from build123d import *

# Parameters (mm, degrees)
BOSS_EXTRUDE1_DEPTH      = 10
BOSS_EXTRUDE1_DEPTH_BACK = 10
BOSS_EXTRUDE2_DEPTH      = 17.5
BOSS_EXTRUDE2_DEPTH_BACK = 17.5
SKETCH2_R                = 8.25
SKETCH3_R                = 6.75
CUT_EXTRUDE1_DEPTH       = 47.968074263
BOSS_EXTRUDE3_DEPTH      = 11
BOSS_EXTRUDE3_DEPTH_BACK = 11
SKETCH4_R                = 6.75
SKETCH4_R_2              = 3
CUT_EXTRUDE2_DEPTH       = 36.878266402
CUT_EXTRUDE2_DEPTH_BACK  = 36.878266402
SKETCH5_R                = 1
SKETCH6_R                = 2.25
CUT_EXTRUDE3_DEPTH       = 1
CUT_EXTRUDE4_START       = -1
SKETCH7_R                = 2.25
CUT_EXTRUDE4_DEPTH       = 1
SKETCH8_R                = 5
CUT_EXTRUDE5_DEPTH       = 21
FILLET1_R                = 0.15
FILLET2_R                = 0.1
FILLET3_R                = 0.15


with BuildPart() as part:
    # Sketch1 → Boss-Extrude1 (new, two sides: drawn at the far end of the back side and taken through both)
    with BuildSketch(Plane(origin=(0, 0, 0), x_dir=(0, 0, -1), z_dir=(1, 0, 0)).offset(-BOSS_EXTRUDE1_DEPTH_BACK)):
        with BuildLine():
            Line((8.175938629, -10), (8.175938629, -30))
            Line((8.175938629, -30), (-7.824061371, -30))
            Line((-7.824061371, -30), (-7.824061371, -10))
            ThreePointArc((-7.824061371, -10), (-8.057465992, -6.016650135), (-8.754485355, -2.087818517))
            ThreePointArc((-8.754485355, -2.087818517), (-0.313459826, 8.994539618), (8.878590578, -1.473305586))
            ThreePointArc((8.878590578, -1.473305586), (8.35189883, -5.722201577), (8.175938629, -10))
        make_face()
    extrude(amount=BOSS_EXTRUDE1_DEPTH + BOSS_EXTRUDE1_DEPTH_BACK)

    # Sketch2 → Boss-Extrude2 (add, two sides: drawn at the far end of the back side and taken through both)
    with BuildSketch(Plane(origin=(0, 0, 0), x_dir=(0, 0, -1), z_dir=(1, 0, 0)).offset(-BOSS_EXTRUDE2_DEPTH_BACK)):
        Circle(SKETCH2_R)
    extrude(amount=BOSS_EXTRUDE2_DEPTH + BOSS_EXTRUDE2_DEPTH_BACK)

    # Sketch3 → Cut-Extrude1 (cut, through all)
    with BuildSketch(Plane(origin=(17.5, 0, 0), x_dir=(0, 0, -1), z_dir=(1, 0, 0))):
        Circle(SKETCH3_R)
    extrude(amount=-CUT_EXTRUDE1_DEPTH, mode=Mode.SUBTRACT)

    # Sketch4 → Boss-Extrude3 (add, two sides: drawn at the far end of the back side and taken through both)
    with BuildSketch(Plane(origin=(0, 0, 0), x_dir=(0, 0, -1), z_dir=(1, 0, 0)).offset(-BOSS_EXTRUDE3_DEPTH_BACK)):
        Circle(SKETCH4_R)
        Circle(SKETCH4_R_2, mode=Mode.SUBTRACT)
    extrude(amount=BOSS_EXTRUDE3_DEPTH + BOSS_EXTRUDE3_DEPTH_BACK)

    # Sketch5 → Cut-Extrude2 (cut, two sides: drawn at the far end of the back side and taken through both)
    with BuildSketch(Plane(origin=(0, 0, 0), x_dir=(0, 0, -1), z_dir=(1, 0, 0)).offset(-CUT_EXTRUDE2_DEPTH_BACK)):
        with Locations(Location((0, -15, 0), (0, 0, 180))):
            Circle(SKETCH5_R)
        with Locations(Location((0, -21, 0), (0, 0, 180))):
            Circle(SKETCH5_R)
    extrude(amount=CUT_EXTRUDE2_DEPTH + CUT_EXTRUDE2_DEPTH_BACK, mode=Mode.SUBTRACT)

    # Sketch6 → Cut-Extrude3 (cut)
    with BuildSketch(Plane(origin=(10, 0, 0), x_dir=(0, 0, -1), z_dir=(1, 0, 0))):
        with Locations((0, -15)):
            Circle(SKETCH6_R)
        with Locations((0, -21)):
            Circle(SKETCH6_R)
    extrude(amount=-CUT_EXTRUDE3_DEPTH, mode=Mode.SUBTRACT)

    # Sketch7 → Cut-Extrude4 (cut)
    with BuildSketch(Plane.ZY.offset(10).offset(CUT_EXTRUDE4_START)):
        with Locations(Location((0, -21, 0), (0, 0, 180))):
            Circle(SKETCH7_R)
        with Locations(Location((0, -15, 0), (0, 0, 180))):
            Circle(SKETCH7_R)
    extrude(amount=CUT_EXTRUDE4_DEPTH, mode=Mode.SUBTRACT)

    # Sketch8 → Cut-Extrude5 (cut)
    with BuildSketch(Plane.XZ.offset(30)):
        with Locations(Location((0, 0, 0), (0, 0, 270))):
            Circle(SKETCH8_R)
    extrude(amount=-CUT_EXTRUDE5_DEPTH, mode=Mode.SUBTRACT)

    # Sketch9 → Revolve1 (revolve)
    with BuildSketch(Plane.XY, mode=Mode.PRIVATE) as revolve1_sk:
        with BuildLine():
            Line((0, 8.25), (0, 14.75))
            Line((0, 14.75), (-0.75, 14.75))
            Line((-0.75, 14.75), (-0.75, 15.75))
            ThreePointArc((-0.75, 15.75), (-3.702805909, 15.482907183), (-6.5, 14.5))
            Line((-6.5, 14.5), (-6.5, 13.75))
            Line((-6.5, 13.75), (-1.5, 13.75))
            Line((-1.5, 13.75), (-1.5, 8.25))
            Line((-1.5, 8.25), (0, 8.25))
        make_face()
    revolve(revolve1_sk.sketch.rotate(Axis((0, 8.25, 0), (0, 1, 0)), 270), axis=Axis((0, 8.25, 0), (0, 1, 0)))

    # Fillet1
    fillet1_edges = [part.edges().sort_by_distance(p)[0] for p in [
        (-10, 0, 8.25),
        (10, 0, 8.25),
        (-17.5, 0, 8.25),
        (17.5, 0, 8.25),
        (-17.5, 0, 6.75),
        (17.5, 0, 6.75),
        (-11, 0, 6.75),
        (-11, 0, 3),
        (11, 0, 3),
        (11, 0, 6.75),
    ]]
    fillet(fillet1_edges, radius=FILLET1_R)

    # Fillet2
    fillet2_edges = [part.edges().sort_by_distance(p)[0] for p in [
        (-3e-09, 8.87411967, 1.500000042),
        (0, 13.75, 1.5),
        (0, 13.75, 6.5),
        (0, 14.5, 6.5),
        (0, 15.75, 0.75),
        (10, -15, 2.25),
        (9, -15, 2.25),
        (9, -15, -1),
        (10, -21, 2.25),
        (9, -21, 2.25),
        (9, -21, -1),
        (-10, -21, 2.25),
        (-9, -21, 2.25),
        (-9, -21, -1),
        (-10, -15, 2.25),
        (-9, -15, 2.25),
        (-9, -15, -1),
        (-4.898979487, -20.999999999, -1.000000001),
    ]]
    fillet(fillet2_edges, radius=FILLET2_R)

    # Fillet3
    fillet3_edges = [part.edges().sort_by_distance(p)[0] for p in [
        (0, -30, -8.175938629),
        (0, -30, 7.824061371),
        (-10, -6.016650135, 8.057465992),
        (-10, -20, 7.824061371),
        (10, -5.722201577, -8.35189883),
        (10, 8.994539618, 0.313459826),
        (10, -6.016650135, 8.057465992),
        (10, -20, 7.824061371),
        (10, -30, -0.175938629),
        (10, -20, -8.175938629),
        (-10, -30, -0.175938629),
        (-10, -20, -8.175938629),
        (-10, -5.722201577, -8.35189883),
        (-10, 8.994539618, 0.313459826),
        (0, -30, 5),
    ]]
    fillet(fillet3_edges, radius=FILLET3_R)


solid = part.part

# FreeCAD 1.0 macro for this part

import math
import FreeCAD as App
import Part
import Sketcher

V = App.Vector
Q = App.Units.Quantity


def edges_at(feature, points):
    """Names of the edges that pass closest to the given points."""
    edges = feature.Shape.Edges
    near = lambda p: min(range(len(edges)), key=lambda i: edges[i].distToShape(Part.Vertex(*p))[0])
    return sorted({f"Edge{near(p) + 1}" for p in points})

doc = App.newDocument("Part")
params = doc.addObject("Spreadsheet::Sheet", "Params")
for row, (alias, value) in enumerate([
    ("sketch1_radius", "9 mm"),
    ("sketch1_width", "20 mm"),
    ("sketch1_height", "16 mm"),
    ("pad1_length", "10 mm"),
    ("pad1_length2", "10 mm"),
    ("sketch2_diameter", "16.5 mm"),
    ("pad2_length", "17.5 mm"),
    ("pad2_length2", "17.5 mm"),
    ("sketch3_diameter", "13.5 mm"),
    ("sketch4_diameter", "6 mm"),
    ("sketch4_diameter2", "13.5 mm"),
    ("pad3_length", "11 mm"),
    ("pad3_length2", "11 mm"),
    ("sketch5_diameter", "2 mm"),
    ("sketch6_diameter", "4.5 mm"),
    ("pocket3_length", "1 mm"),
    ("sketch7_diameter", "4.5 mm"),
    ("pocket4_length", "1 mm"),
    ("sketch8_diameter", "10 mm"),
    ("pocket5_length", "21 mm"),
    ("sketch9_radius", "12 mm"),
    ("sketch9_width", "5 mm"),
    ("sketch9_height", "1 mm"),
    ("sketch9_width2", "1.5 mm"),
    ("sketch9_height2", "6.5 mm"),
    ("revolution_angle", "360 deg"),
    ("fillet_radius", "0.15 mm"),
    ("fillet2_radius", "0.1 mm"),
    ("fillet3_radius", "0.15 mm"),
], start=1):
    params.set(f"A{row}", alias)
    params.set(f"B{row}", "=" + value)
    params.setAlias(f"B{row}", alias)

body = doc.addObject("PartDesign::Body", "Body")

sketch1 = doc.addObject("Sketcher::SketchObject", "Sketch")
body.addObject(sketch1)
sketch1.AttachmentSupport = (doc.YZ_Plane, [""])
sketch1.MapMode = "FlatFace"
sketch1.addGeometry(Part.LineSegment(V(-30, -8.175939, 0), V(-10, -8.175939, 0)), False)
sketch1.addGeometry(Part.ArcOfCircle(Part.Circle(V(-10, -60.263062, 0), V(0, 0, 1), 52.087123), math.radians(80.578241), math.radians(90)), False)
sketch1.addGeometry(Part.ArcOfCircle(Part.Circle(V(0, 0, 0), V(0, 0, 1), 9), math.radians(-99.421759), math.radians(103.413661)), False)
sketch1.addGeometry(Part.ArcOfCircle(Part.Circle(V(-10, 41.931256, 0), V(0, 0, 1), 34.107195), math.radians(-90), math.radians(-76.586339)), False)
sketch1.addGeometry(Part.LineSegment(V(-10, 7.824061, 0), V(-30, 7.824061, 0)), False)
sketch1.addGeometry(Part.LineSegment(V(-30, 7.824061, 0), V(-30, -8.175939, 0)), False)
sketch1.addConstraint(Sketcher.Constraint("Tangent", 0, 2, 1, 2))
sketch1.addConstraint(Sketcher.Constraint("Tangent", 1, 1, 2, 1))
sketch1.addConstraint(Sketcher.Constraint("Tangent", 2, 2, 3, 2))
sketch1.addConstraint(Sketcher.Constraint("Tangent", 3, 1, 4, 1))
sketch1.addConstraint(Sketcher.Constraint("Coincident", 4, 2, 5, 1))
sketch1.addConstraint(Sketcher.Constraint("Coincident", 5, 2, 0, 1))
sketch1.addConstraint(Sketcher.Constraint("Horizontal", 0))
sketch1.addConstraint(Sketcher.Constraint("Horizontal", 4))
sketch1.addConstraint(Sketcher.Constraint("Vertical", 5))
sketch1.addConstraint(Sketcher.Constraint("Coincident", 2, 3, -1, 1))
sketch1.addConstraint(Sketcher.Constraint("Vertical", 1, 3, 3, 3))
sketch1.addConstraint(Sketcher.Constraint("Radius", 2, Q("9 mm")))
sketch1.addConstraint(Sketcher.Constraint("DistanceX", 0, 1, 0, 2, Q("20 mm")))
sketch1.addConstraint(Sketcher.Constraint("DistanceY", 5, 2, 5, 1, Q("16 mm")))
sketch1.addConstraint(Sketcher.Constraint("DistanceX", 1, 3, -1, 1, Q("10 mm")))
sketch1.addConstraint(Sketcher.Constraint("Radius", 1, Q("52.087123 mm")))
sketch1.setExpression("Constraints[11]", "Params.sketch1_radius")
sketch1.setExpression("Constraints[12]", "Params.sketch1_width")
sketch1.setExpression("Constraints[13]", "Params.sketch1_height")
pad1 = doc.addObject("PartDesign::Pad", "Pad")
body.addObject(pad1)
pad1.Profile = sketch1
pad1.Type = "TwoLengths"
pad1.setExpression("Length", "Params.pad1_length")
pad1.setExpression("Length2", "Params.pad1_length2")

sketch2 = doc.addObject("Sketcher::SketchObject", "Sketch001")
body.addObject(sketch2)
sketch2.AttachmentSupport = (doc.YZ_Plane, [""])
sketch2.MapMode = "FlatFace"
sketch2.addGeometry(Part.Circle(V(0, 0, 0), V(0, 0, 1), 8.25), False)
sketch2.addConstraint(Sketcher.Constraint("Coincident", 0, 3, -1, 1))
sketch2.addConstraint(Sketcher.Constraint("Diameter", 0, Q("16.5 mm")))
sketch2.setExpression("Constraints[1]", "Params.sketch2_diameter")
pad2 = doc.addObject("PartDesign::Pad", "Pad001")
body.addObject(pad2)
pad2.Profile = sketch2
pad2.Type = "TwoLengths"
pad2.setExpression("Length", "Params.pad2_length")
pad2.setExpression("Length2", "Params.pad2_length2")

sketch3 = doc.addObject("Sketcher::SketchObject", "Sketch002")
body.addObject(sketch3)
sketch3.AttachmentSupport = (doc.YZ_Plane, [""])
sketch3.MapMode = "FlatFace"
sketch3.AttachmentOffset = App.Placement(V(0, 0, 17.5), App.Rotation())
sketch3.addGeometry(Part.Circle(V(0, 0, 0), V(0, 0, 1), 6.75), False)
sketch3.addConstraint(Sketcher.Constraint("Coincident", 0, 3, -1, 1))
sketch3.addConstraint(Sketcher.Constraint("Diameter", 0, Q("13.5 mm")))
sketch3.setExpression("Constraints[1]", "Params.sketch3_diameter")
pocket1 = doc.addObject("PartDesign::Pocket", "Pocket")
body.addObject(pocket1)
pocket1.Profile = sketch3
pocket1.Type = "ThroughAll"

sketch4 = doc.addObject("Sketcher::SketchObject", "Sketch003")
body.addObject(sketch4)
sketch4.AttachmentSupport = (doc.YZ_Plane, [""])
sketch4.MapMode = "FlatFace"
sketch4.addGeometry(Part.Circle(V(0, 0, 0), V(0, 0, 1), 6.75), False)
sketch4.addGeometry(Part.Circle(V(0, 0, 0), V(0, 0, 1), 3), False)
sketch4.addConstraint(Sketcher.Constraint("Coincident", 0, 3, -1, 1))
sketch4.addConstraint(Sketcher.Constraint("Coincident", 1, 3, -1, 1))
sketch4.addConstraint(Sketcher.Constraint("Diameter", 1, Q("6 mm")))
sketch4.addConstraint(Sketcher.Constraint("Diameter", 0, Q("13.5 mm")))
sketch4.setExpression("Constraints[2]", "Params.sketch4_diameter")
sketch4.setExpression("Constraints[3]", "Params.sketch4_diameter2")
pad3 = doc.addObject("PartDesign::Pad", "Pad002")
body.addObject(pad3)
pad3.Profile = sketch4
pad3.Type = "TwoLengths"
pad3.setExpression("Length", "Params.pad3_length")
pad3.setExpression("Length2", "Params.pad3_length2")

sketch5 = doc.addObject("Sketcher::SketchObject", "Sketch004")
body.addObject(sketch5)
sketch5.AttachmentSupport = (doc.YZ_Plane, [""])
sketch5.MapMode = "FlatFace"
sketch5.addGeometry(Part.Circle(V(-15, 0, 0), V(0, 0, 1), 1), False)
sketch5.addGeometry(Part.Circle(V(-21, 0, 0), V(0, 0, 1), 1), False)
sketch5.addConstraint(Sketcher.Constraint("Equal", 0, 1))
sketch5.addConstraint(Sketcher.Constraint("PointOnObject", 0, 3, -1))
sketch5.addConstraint(Sketcher.Constraint("PointOnObject", 1, 3, -1))
sketch5.addConstraint(Sketcher.Constraint("Diameter", 0, Q("2 mm")))
sketch5.addConstraint(Sketcher.Constraint("DistanceX", 0, 3, -1, 1, Q("15 mm")))
sketch5.addConstraint(Sketcher.Constraint("DistanceX", 1, 3, -1, 1, Q("21 mm")))
sketch5.setExpression("Constraints[3]", "Params.sketch5_diameter")
pocket2 = doc.addObject("PartDesign::Pocket", "Pocket001")
body.addObject(pocket2)
pocket2.Profile = sketch5
pocket2.Type = "ThroughAll"
pocket2.Midplane = True

sketch6 = doc.addObject("Sketcher::SketchObject", "Sketch005")
body.addObject(sketch6)
sketch6.AttachmentSupport = (doc.YZ_Plane, [""])
sketch6.MapMode = "FlatFace"
sketch6.AttachmentOffset = App.Placement(V(0, 0, 10), App.Rotation())
sketch6.addGeometry(Part.Circle(V(-15, 0, 0), V(0, 0, 1), 2.25), False)
sketch6.addGeometry(Part.Circle(V(-21, 0, 0), V(0, 0, 1), 2.25), False)
sketch6.addConstraint(Sketcher.Constraint("Equal", 0, 1))
sketch6.addConstraint(Sketcher.Constraint("PointOnObject", 0, 3, -1))
sketch6.addConstraint(Sketcher.Constraint("PointOnObject", 1, 3, -1))
sketch6.addConstraint(Sketcher.Constraint("Diameter", 0, Q("4.5 mm")))
sketch6.addConstraint(Sketcher.Constraint("DistanceX", 0, 3, -1, 1, Q("15 mm")))
sketch6.addConstraint(Sketcher.Constraint("DistanceX", 1, 3, -1, 1, Q("21 mm")))
sketch6.setExpression("Constraints[3]", "Params.sketch6_diameter")
pocket3 = doc.addObject("PartDesign::Pocket", "Pocket002")
body.addObject(pocket3)
pocket3.Profile = sketch6
pocket3.setExpression("Length", "Params.pocket3_length")

sketch7 = doc.addObject("Sketcher::SketchObject", "Sketch006")
body.addObject(sketch7)
sketch7.AttachmentSupport = (doc.YZ_Plane, [""])
sketch7.MapMode = "FlatFace"
sketch7.AttachmentOffset = App.Placement(V(0, 0, -9), App.Rotation())
sketch7.addGeometry(Part.Circle(V(-21, 0, 0), V(0, 0, 1), 2.25), False)
sketch7.addGeometry(Part.Circle(V(-15, 0, 0), V(0, 0, 1), 2.25), False)
sketch7.addConstraint(Sketcher.Constraint("Equal", 0, 1))
sketch7.addConstraint(Sketcher.Constraint("PointOnObject", 0, 3, -1))
sketch7.addConstraint(Sketcher.Constraint("PointOnObject", 1, 3, -1))
sketch7.addConstraint(Sketcher.Constraint("Diameter", 0, Q("4.5 mm")))
sketch7.addConstraint(Sketcher.Constraint("DistanceX", 0, 3, -1, 1, Q("21 mm")))
sketch7.addConstraint(Sketcher.Constraint("DistanceX", 1, 3, -1, 1, Q("15 mm")))
sketch7.setExpression("Constraints[3]", "Params.sketch7_diameter")
pocket4 = doc.addObject("PartDesign::Pocket", "Pocket003")
body.addObject(pocket4)
pocket4.Profile = sketch7
pocket4.setExpression("Length", "Params.pocket4_length")

sketch8 = doc.addObject("Sketcher::SketchObject", "Sketch007")
body.addObject(sketch8)
sketch8.AttachmentSupport = (doc.XZ_Plane, [""])
sketch8.MapMode = "FlatFace"
sketch8.AttachmentOffset = App.Placement(V(0, 0, 30), App.Rotation())
sketch8.addGeometry(Part.Circle(V(0, 0, 0), V(0, 0, 1), 5), False)
sketch8.addConstraint(Sketcher.Constraint("Coincident", 0, 3, -1, 1))
sketch8.addConstraint(Sketcher.Constraint("Diameter", 0, Q("10 mm")))
sketch8.setExpression("Constraints[1]", "Params.sketch8_diameter")
pocket5 = doc.addObject("PartDesign::Pocket", "Pocket004")
body.addObject(pocket5)
pocket5.Profile = sketch8
pocket5.setExpression("Length", "Params.pocket5_length")

sketch9 = doc.addObject("Sketcher::SketchObject", "Sketch008")
body.addObject(sketch9)
sketch9.AttachmentSupport = (doc.XY_Plane, [""])
sketch9.MapMode = "FlatFace"
sketch9.addGeometry(Part.LineSegment(V(0, 8.25, 0), V(0, 14.75, 0)), False)
sketch9.addGeometry(Part.LineSegment(V(0, 14.75, 0), V(-0.75, 14.75, 0)), False)
sketch9.addGeometry(Part.LineSegment(V(-0.75, 14.75, 0), V(-0.75, 15.75, 0)), False)
sketch9.addGeometry(Part.ArcOfCircle(Part.Circle(V(-1.15365, 3.756791, 0), V(0, 0, 1), 12), math.radians(88.072349), math.radians(116.457199)), False)
sketch9.addGeometry(Part.LineSegment(V(-6.5, 14.5, 0), V(-6.5, 13.75, 0)), False)
sketch9.addGeometry(Part.LineSegment(V(-6.5, 13.75, 0), V(-1.5, 13.75, 0)), False)
sketch9.addGeometry(Part.LineSegment(V(-1.5, 13.75, 0), V(-1.5, 8.25, 0)), False)
sketch9.addGeometry(Part.LineSegment(V(-1.5, 8.25, 0), V(0, 8.25, 0)), False)
sketch9.addConstraint(Sketcher.Constraint("Coincident", 0, 2, 1, 1))
sketch9.addConstraint(Sketcher.Constraint("Coincident", 1, 2, 2, 1))
sketch9.addConstraint(Sketcher.Constraint("Coincident", 2, 2, 3, 1))
sketch9.addConstraint(Sketcher.Constraint("Coincident", 3, 2, 4, 1))
sketch9.addConstraint(Sketcher.Constraint("Coincident", 4, 2, 5, 1))
sketch9.addConstraint(Sketcher.Constraint("Coincident", 5, 2, 6, 1))
sketch9.addConstraint(Sketcher.Constraint("Coincident", 6, 2, 7, 1))
sketch9.addConstraint(Sketcher.Constraint("Coincident", 7, 2, 0, 1))
sketch9.addConstraint(Sketcher.Constraint("Vertical", 0))
sketch9.addConstraint(Sketcher.Constraint("Horizontal", 1))
sketch9.addConstraint(Sketcher.Constraint("Vertical", 2))
sketch9.addConstraint(Sketcher.Constraint("Vertical", 4))
sketch9.addConstraint(Sketcher.Constraint("Horizontal", 5))
sketch9.addConstraint(Sketcher.Constraint("Vertical", 6))
sketch9.addConstraint(Sketcher.Constraint("Horizontal", 7))
sketch9.addConstraint(Sketcher.Constraint("PointOnObject", 0, 2, -2))
sketch9.addConstraint(Sketcher.Constraint("Equal", 1, 4))
sketch9.addConstraint(Sketcher.Constraint("Radius", 3, Q("12 mm")))
sketch9.addConstraint(Sketcher.Constraint("DistanceX", 5, 1, 5, 2, Q("5 mm")))
sketch9.addConstraint(Sketcher.Constraint("DistanceY", 2, 1, 2, 2, Q("1 mm")))
sketch9.addConstraint(Sketcher.Constraint("DistanceX", 7, 1, 7, 2, Q("1.5 mm")))
sketch9.addConstraint(Sketcher.Constraint("DistanceY", 0, 1, 0, 2, Q("6.5 mm")))
sketch9.addConstraint(Sketcher.Constraint("DistanceY", 6, 2, 6, 1, Q("5.5 mm")))
sketch9.addConstraint(Sketcher.Constraint("DistanceX", 1, 2, 1, 1, Q("0.75 mm")))
sketch9.addConstraint(Sketcher.Constraint("DistanceY", -1, 1, 3, 2, Q("14.5 mm")))
sketch9.setExpression("Constraints[17]", "Params.sketch9_radius")
sketch9.setExpression("Constraints[18]", "Params.sketch9_width")
sketch9.setExpression("Constraints[19]", "Params.sketch9_height")
sketch9.setExpression("Constraints[20]", "Params.sketch9_width2")
sketch9.setExpression("Constraints[21]", "Params.sketch9_height2")
revolution = doc.addObject("PartDesign::Revolution", "Revolution")
body.addObject(revolution)
revolution.Profile = sketch9
revolution.ReferenceAxis = (sketch9, ["V_Axis"])
revolution.setExpression("Angle", "Params.revolution_angle")
doc.recompute()

fillet = doc.addObject("PartDesign::Fillet", "Fillet")
body.addObject(fillet)
fillet.Base = (revolution, edges_at(revolution, [
    (-10, 0, 8.25),
    (10, 0, 8.25),
    (-17.5, 0, 8.25),
    (17.5, 0, 8.25),
    (-17.5, 0, 6.75),
    (17.5, 0, 6.75),
    (-11, 0, 6.75),
    (-11, 0, 3),
    (11, 0, 3),
    (11, 0, 6.75),
]))
fillet.setExpression("Radius", "Params.fillet_radius")
doc.recompute()

fillet2 = doc.addObject("PartDesign::Fillet", "Fillet001")
body.addObject(fillet2)
fillet2.Base = (fillet, edges_at(fillet, [
    (0, 8.874, 1.5),
    (0, 13.75, 1.5),
    (0, 13.75, 6.5),
    (0, 14.5, 6.5),
    (0, 15.75, 0.75),
    (10, -15, 2.25),
    (9, -15, 2.25),
    (9, -15, -1),
    (10, -21, 2.25),
    (9, -21, 2.25),
    (9, -21, -1),
    (-10, -21, 2.25),
    (-9, -21, 2.25),
    (-9, -21, -1),
    (-10, -15, 2.25),
    (-9, -15, 2.25),
    (-9, -15, -1),
    (-4.899, -21, -1),
]))
fillet2.setExpression("Radius", "Params.fillet2_radius")
doc.recompute()

fillet3 = doc.addObject("PartDesign::Fillet", "Fillet002")
body.addObject(fillet3)
fillet3.Base = (fillet2, edges_at(fillet2, [
    (0, -30, -8.176),
    (0, -30, 7.824),
    (-10, -6.017, 8.057),
    (-10, -20, 7.824),
    (10, -5.722, -8.352),
    (10, 8.995, 0.313),
    (10, -6.017, 8.057),
    (10, -20, 7.824),
    (10, -30, -0.176),
    (10, -20, -8.176),
    (-10, -30, -0.176),
    (-10, -20, -8.176),
    (-10, -5.722, -8.352),
    (-10, 8.995, 0.313),
    (0, -30, 5),
]))
fillet3.setExpression("Radius", "Params.fillet3_radius")

doc.recompute()
